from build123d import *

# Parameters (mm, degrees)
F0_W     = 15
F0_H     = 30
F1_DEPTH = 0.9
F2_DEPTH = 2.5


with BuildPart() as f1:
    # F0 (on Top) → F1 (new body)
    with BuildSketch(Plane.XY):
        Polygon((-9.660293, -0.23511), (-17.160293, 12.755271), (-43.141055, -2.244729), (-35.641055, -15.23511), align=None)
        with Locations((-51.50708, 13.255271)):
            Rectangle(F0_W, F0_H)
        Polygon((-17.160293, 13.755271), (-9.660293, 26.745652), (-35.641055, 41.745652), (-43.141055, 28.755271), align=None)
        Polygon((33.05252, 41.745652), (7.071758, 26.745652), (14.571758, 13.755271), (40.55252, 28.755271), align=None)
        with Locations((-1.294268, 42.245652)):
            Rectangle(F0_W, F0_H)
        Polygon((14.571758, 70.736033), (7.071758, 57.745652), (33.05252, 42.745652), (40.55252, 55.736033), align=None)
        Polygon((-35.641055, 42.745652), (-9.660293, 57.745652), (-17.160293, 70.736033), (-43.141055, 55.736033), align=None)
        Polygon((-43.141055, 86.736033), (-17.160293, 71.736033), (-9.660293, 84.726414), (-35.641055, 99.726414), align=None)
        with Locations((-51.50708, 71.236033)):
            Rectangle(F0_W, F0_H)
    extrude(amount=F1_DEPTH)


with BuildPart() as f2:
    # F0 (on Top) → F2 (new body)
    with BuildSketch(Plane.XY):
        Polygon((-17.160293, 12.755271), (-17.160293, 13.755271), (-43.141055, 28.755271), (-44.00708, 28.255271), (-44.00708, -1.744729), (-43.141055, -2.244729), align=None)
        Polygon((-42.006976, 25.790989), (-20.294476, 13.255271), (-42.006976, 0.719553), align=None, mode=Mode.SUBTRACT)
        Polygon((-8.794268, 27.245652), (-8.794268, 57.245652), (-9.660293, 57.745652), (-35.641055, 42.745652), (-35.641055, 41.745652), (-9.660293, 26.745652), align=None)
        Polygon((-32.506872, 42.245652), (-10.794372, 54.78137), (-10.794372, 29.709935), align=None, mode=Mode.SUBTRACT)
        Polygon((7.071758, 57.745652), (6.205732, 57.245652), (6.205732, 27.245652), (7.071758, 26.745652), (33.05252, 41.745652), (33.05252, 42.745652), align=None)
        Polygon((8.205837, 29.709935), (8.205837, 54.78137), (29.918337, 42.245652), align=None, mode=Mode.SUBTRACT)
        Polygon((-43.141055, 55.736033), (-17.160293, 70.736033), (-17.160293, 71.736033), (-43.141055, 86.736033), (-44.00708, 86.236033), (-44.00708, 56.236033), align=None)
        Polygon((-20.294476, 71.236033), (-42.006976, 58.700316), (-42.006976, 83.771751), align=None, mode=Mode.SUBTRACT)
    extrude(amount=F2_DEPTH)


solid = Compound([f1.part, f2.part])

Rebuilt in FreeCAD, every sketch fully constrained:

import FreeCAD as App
import Part
import Sketcher
from FreeCAD import Vector
Q = App.Units.Quantity


def add_polygon(sketch, points):
    """Adds a closed chain of lines whose ends are joined by coincident constraints."""
    first, n = sketch.GeometryCount, len(points)
    for a, b in zip(points, points[1:] + points[:1]):
        sketch.addGeometry(Part.LineSegment(App.Vector(*a, 0), App.Vector(*b, 0)), False)
    for i in range(n):
        sketch.addConstraint(Sketcher.Constraint("Coincident", first + i, 2, first + (i + 1) % n, 1))

doc = App.newDocument("Part")
body = doc.addObject("PartDesign::Body", "Body")
body.AllowCompound = True

sketch1 = body.newObject("Sketcher::SketchObject", "Sketch")
sketch1.AttachmentSupport = (doc.getObject("XY_Plane"), [""])
sketch1.MapMode = "FlatFace"
add_polygon(sketch1, [(-10, 0), (-17, 13), (-43, -2), (-36, -15)])
add_polygon(sketch1, [(-59, 28), (-59, -2), (-44, -2), (-44, 28)])
add_polygon(sketch1, [(-17, 14), (-10, 27), (-36, 42), (-43, 29)])
add_polygon(sketch1, [(33, 42), (7, 27), (15, 14), (41, 29)])
add_polygon(sketch1, [(-9, 57), (-9, 27), (6, 27), (6, 57)])
add_polygon(sketch1, [(15, 71), (7, 58), (33, 43), (41, 56)])
add_polygon(sketch1, [(-36, 43), (-10, 58), (-17, 71), (-43, 56)])
add_polygon(sketch1, [(-43, 87), (-17, 72), (-10, 85), (-36, 100)])
add_polygon(sketch1, [(-59, 86), (-59, 56), (-44, 56), (-44, 86)])
sketch1.addConstraint(Sketcher.Constraint("Vertical", 4))
sketch1.addConstraint(Sketcher.Constraint("Horizontal", 5))
sketch1.addConstraint(Sketcher.Constraint("Vertical", 6))
sketch1.addConstraint(Sketcher.Constraint("Horizontal", 7))
sketch1.addConstraint(Sketcher.Constraint("Vertical", 16))
sketch1.addConstraint(Sketcher.Constraint("Horizontal", 17))
sketch1.addConstraint(Sketcher.Constraint("Vertical", 18))
sketch1.addConstraint(Sketcher.Constraint("Horizontal", 19))
sketch1.addConstraint(Sketcher.Constraint("Vertical", 32))
sketch1.addConstraint(Sketcher.Constraint("Horizontal", 33))
sketch1.addConstraint(Sketcher.Constraint("Vertical", 34))
sketch1.addConstraint(Sketcher.Constraint("Horizontal", 35))
sketch1.addConstraint(Sketcher.Constraint("Perpendicular", 0, 1))
sketch1.addConstraint(Sketcher.Constraint("Perpendicular", 1, 2))
sketch1.addConstraint(Sketcher.Constraint("Perpendicular", 2, 3))
sketch1.addConstraint(Sketcher.Constraint("Perpendicular", 8, 9))
sketch1.addConstraint(Sketcher.Constraint("Perpendicular", 9, 10))
sketch1.addConstraint(Sketcher.Constraint("Perpendicular", 10, 11))
sketch1.addConstraint(Sketcher.Constraint("Parallel", 3, 12))
sketch1.addConstraint(Sketcher.Constraint("Perpendicular", 12, 13))
sketch1.addConstraint(Sketcher.Constraint("Perpendicular", 13, 14))
sketch1.addConstraint(Sketcher.Constraint("Perpendicular", 14, 15))
sketch1.addConstraint(Sketcher.Constraint("Perpendicular", 11, 20))
sketch1.addConstraint(Sketcher.Constraint("Perpendicular", 20, 21))
sketch1.addConstraint(Sketcher.Constraint("Perpendicular", 21, 22))
sketch1.addConstraint(Sketcher.Constraint("Perpendicular", 22, 23))
sketch1.addConstraint(Sketcher.Constraint("Perpendicular", 15, 24))
sketch1.addConstraint(Sketcher.Constraint("Perpendicular", 24, 25))
sketch1.addConstraint(Sketcher.Constraint("Perpendicular", 25, 26))
sketch1.addConstraint(Sketcher.Constraint("Perpendicular", 26, 27))
sketch1.addConstraint(Sketcher.Constraint("Parallel", 23, 28))
sketch1.addConstraint(Sketcher.Constraint("Perpendicular", 28, 29))
sketch1.addConstraint(Sketcher.Constraint("Perpendicular", 29, 30))
sketch1.addConstraint(Sketcher.Constraint("Perpendicular", 30, 31))
sketch1.addConstraint(Sketcher.Constraint("Horizontal", 8, 2, 12, 2))
sketch1.addConstraint(Sketcher.Constraint("Horizontal", 11, 2, 13, 2))
sketch1.addConstraint(Sketcher.Constraint("Horizontal", 10, 2, 14, 2))
sketch1.addConstraint(Sketcher.Constraint("Horizontal", 20, 2, 24, 2))
sketch1.addConstraint(Sketcher.Constraint("Horizontal", 23, 2, 25, 2))
sketch1.addConstraint(Sketcher.Constraint("Horizontal", 22, 2, 26, 2))
sketch1.addConstraint(Sketcher.Constraint("Vertical", 3, 2, 8, 2))
sketch1.addConstraint(Sketcher.Constraint("Vertical", 2, 2, 9, 2))
sketch1.addConstraint(Sketcher.Constraint("Vertical", 1, 2, 10, 2))
sketch1.addConstraint(Sketcher.Constraint("Vertical", 12, 2, 20, 2))
sketch1.addConstraint(Sketcher.Constraint("Vertical", 15, 2, 21, 2))
sketch1.addConstraint(Sketcher.Constraint("Vertical", 14, 2, 22, 2))
sketch1.addConstraint(Sketcher.Constraint("Vertical", 8, 2, 24, 2))
sketch1.addConstraint(Sketcher.Constraint("Vertical", 11, 2, 25, 2))
sketch1.addConstraint(Sketcher.Constraint("Vertical", 25, 2, 28, 2))
sketch1.addConstraint(Sketcher.Constraint("Vertical", 24, 2, 29, 2))
sketch1.addConstraint(Sketcher.Constraint("Vertical", 27, 2, 30, 2))
sketch1.addConstraint(Sketcher.Constraint("Vertical", 7, 2, 32, 2))
sketch1.addConstraint(Sketcher.Constraint("Vertical", 6, 2, 33, 2))
sketch1.addConstraint(Sketcher.Constraint("Equal", 7, 17))
sketch1.addConstraint(Sketcher.Constraint("Equal", 6, 16))
sketch1.addConstraint(Sketcher.Constraint("Equal", 18, 32))
sketch1.addConstraint(Sketcher.Constraint("DistanceX", 5, 1, 5, 2, 15.0))
sketch1.addConstraint(Sketcher.Constraint("DistanceY", 4, 2, 4, 1, 30.0))
sketch1.addConstraint(Sketcher.Constraint("Angle", 0, Q("120 deg")))
sketch1.addConstraint(Sketcher.Constraint("Distance", 0, 15.0))
sketch1.addConstraint(Sketcher.Constraint("Distance", 1, 30.0))
sketch1.addConstraint(Sketcher.Constraint("DistanceY", 0, 2, 10, 2, 16.0))
sketch1.addConstraint(Sketcher.Constraint("DistanceY", 15, 2, 20, 2, 16.0))
sketch1.addConstraint(Sketcher.Constraint("DistanceY", 25, 2, 28, 2, 1.0))
sketch1.addConstraint(Sketcher.Constraint("DistanceY", 1, 2, 4, 2, 0.5))
sketch1.addConstraint(Sketcher.Constraint("DistanceY", 8, 2, 16, 2, 0.5))
sketch1.addConstraint(Sketcher.Constraint("DistanceY", 26, 2, 32, 2, 0.5))
sketch1.addConstraint(Sketcher.Constraint("DistanceY", -1, 1, 0, 2, 12.755271))
sketch1.addConstraint(Sketcher.Constraint("DistanceX", 4, 2, -1, 1, 59.00708))
sketch1.addConstraint(Sketcher.Constraint("DistanceX", -1, 1, 13, 2, 14.571758))
sketch1.addConstraint(Sketcher.Constraint("DistanceX", 16, 2, -1, 1, 8.794268))
sketch1.addConstraint(Sketcher.Constraint("DistanceX", 8, 2, 12, 2, 16.732051))
pad1 = body.newObject("PartDesign::Pad", "Pad")
pad1.Profile = sketch1
pad1.Length = 0.9
body2 = doc.addObject("PartDesign::Body", "Body001")
body2.AllowCompound = True

sketch2 = body2.newObject("Sketcher::SketchObject", "Sketch001")
sketch2.AttachmentSupport = (doc.getObject("XY_Plane001"), [""])
sketch2.MapMode = "FlatFace"
add_polygon(sketch2, [(-17.2, 12.8), (-17.2, 13.8), (-43.1, 28.8), (-44, 28.3), (-44, -1.7), (-43.1, -2.2)])
add_polygon(sketch2, [(-42, 0.7), (-42, 25.8), (-20.3, 13.3)])
add_polygon(sketch2, [(-8.8, 27.2), (-8.8, 57.2), (-9.7, 57.7), (-35.6, 42.7), (-35.6, 41.7), (-9.7, 26.7)])
add_polygon(sketch2, [(-10.8, 29.7), (-32.5, 42.2), (-10.8, 54.8)])
add_polygon(sketch2, [(7.1, 57.7), (6.2, 57.2), (6.2, 27.2), (7.1, 26.7), (33.1, 41.7), (33.1, 42.7)])
add_polygon(sketch2, [(29.9, 42.2), (8.2, 29.7), (8.2, 54.8)])
add_polygon(sketch2, [(-43.1, 55.7), (-17.2, 70.7), (-17.2, 71.7), (-43.1, 86.7), (-44, 86.2), (-44, 56.2)])
add_polygon(sketch2, [(-42, 83.8), (-20.3, 71.2), (-42, 58.7)])
sketch2.addConstraint(Sketcher.Constraint("Vertical", 0))
sketch2.addConstraint(Sketcher.Constraint("Vertical", 3))
sketch2.addConstraint(Sketcher.Constraint("Vertical", 6))
sketch2.addConstraint(Sketcher.Constraint("Vertical", 9))
sketch2.addConstraint(Sketcher.Constraint("Vertical", 12))
sketch2.addConstraint(Sketcher.Constraint("Vertical", 17))
sketch2.addConstraint(Sketcher.Constraint("Vertical", 19))
sketch2.addConstraint(Sketcher.Constraint("Vertical", 22))
sketch2.addConstraint(Sketcher.Constraint("Vertical", 25))
sketch2.addConstraint(Sketcher.Constraint("Vertical", 28))
sketch2.addConstraint(Sketcher.Constraint("Vertical", 31))
sketch2.addConstraint(Sketcher.Constraint("Vertical", 35))
sketch2.addConstraint(Sketcher.Constraint("Parallel", 1, 4))
sketch2.addConstraint(Sketcher.Constraint("Parallel", 2, 5))
sketch2.addConstraint(Sketcher.Constraint("Parallel", 4, 7))
sketch2.addConstraint(Sketcher.Constraint("Parallel", 5, 8))
sketch2.addConstraint(Sketcher.Constraint("Parallel", 7, 10))
sketch2.addConstraint(Sketcher.Constraint("Parallel", 8, 11))
sketch2.addConstraint(Sketcher.Constraint("Parallel", 10, 13))
sketch2.addConstraint(Sketcher.Constraint("Parallel", 11, 14))
sketch2.addConstraint(Sketcher.Constraint("Parallel", 13, 15))
sketch2.addConstraint(Sketcher.Constraint("Parallel", 14, 16))
sketch2.addConstraint(Sketcher.Constraint("Parallel", 16, 18))
sketch2.addConstraint(Sketcher.Constraint("Parallel", 15, 20))
sketch2.addConstraint(Sketcher.Constraint("Parallel", 18, 21))
sketch2.addConstraint(Sketcher.Constraint("Parallel", 20, 23))
sketch2.addConstraint(Sketcher.Constraint("Parallel", 21, 24))
sketch2.addConstraint(Sketcher.Constraint("Parallel", 23, 26))
sketch2.addConstraint(Sketcher.Constraint("Parallel", 24, 27))
sketch2.addConstraint(Sketcher.Constraint("Parallel", 26, 29))
sketch2.addConstraint(Sketcher.Constraint("Parallel", 27, 30))
sketch2.addConstraint(Sketcher.Constraint("Parallel", 29, 32))
sketch2.addConstraint(Sketcher.Constraint("Parallel", 32, 33))
sketch2.addConstraint(Sketcher.Constraint("Parallel", 30, 34))
sketch2.addConstraint(Sketcher.Constraint("Horizontal", 9, 2, 18, 2))
sketch2.addConstraint(Sketcher.Constraint("Horizontal", 14, 2, 19, 2))
sketch2.addConstraint(Sketcher.Constraint("Horizontal", 13, 2, 20, 2))
sketch2.addConstraint(Sketcher.Constraint("Horizontal", 12, 2, 21, 2))
sketch2.addConstraint(Sketcher.Constraint("Horizontal", 11, 2, 22, 2))
sketch2.addConstraint(Sketcher.Constraint("Horizontal", 10, 2, 23, 2))
sketch2.addConstraint(Sketcher.Constraint("Horizontal", 17, 2, 24, 2))
sketch2.addConstraint(Sketcher.Constraint("Horizontal", 16, 2, 25, 2))
sketch2.addConstraint(Sketcher.Constraint("Vertical", 1, 2, 4, 2))
sketch2.addConstraint(Sketcher.Constraint("Vertical", 10, 2, 13, 2))
sketch2.addConstraint(Sketcher.Constraint("Vertical", 5, 2, 27, 2))
sketch2.addConstraint(Sketcher.Constraint("Vertical", 4, 2, 29, 2))
sketch2.addConstraint(Sketcher.Constraint("Vertical", 3, 2, 30, 2))
sketch2.addConstraint(Sketcher.Constraint("Vertical", 29, 2, 32, 2))
sketch2.addConstraint(Sketcher.Constraint("Vertical", 7, 2, 33, 2))
sketch2.addConstraint(Sketcher.Constraint("Vertical", 8, 2, 34, 2))
sketch2.addConstraint(Sketcher.Constraint("Equal", 3, 9))
sketch2.addConstraint(Sketcher.Constraint("Equal", 0, 12))
sketch2.addConstraint(Sketcher.Constraint("Equal", 6, 17))
sketch2.addConstraint(Sketcher.Constraint("Equal", 22, 28))
sketch2.addConstraint(Sketcher.Constraint("Equal", 4, 10))
sketch2.addConstraint(Sketcher.Constraint("DistanceY", 0, 1, 0, 2, 1.0))
sketch2.addConstraint(Sketcher.Constraint("DistanceY", 3, 2, 3, 1, 30.0))
sketch2.addConstraint(Sketcher.Constraint("Angle", 1, Q("150 deg")))
sketch2.addConstraint(Sketcher.Constraint("Distance", 1, 30.0))
sketch2.addConstraint(Sketcher.Constraint("DistanceX", 9, 2, 18, 2, 15.0))
sketch2.addConstraint(Sketcher.Constraint("DistanceY", 7, 2, 0, 2, 0.5))
sketch2.addConstraint(Sketcher.Constraint("DistanceX", 0, 2, 10, 2, 7.5))
sketch2.addConstraint(Sketcher.Constraint("DistanceY", 15, 2, 11, 2, 0.5))
sketch2.addConstraint(Sketcher.Constraint("DistanceY", 27, 2, 33, 2, 0.5))
sketch2.addConstraint(Sketcher.Constraint("DistanceX", 6, 2, 7, 2, 21.7125))
sketch2.addConstraint(Sketcher.Constraint("DistanceY", -1, 1, 0, 2, 13.755271))
sketch2.addConstraint(Sketcher.Constraint("DistanceX", 2, 2, -1, 1, 44.00708))
sketch2.addConstraint(Sketcher.Constraint("DistanceY", -1, 1, 13, 2, 26.745652))
sketch2.addConstraint(Sketcher.Constraint("DistanceX", 16, 2, -1, 1, 10.794372))
sketch2.addConstraint(Sketcher.Constraint("DistanceY", -1, 1, 35, 2, 83.771751))
sketch2.addConstraint(Sketcher.Constraint("DistanceX", 1, 2, 6, 2, 1.134079))
sketch2.addConstraint(Sketcher.Constraint("DistanceX", 20, 2, 24, 2, 1.134079))
pad2 = body2.newObject("PartDesign::Pad", "Pad001")
pad2.Profile = sketch2
pad2.Length = 2.5

doc.recompute()
